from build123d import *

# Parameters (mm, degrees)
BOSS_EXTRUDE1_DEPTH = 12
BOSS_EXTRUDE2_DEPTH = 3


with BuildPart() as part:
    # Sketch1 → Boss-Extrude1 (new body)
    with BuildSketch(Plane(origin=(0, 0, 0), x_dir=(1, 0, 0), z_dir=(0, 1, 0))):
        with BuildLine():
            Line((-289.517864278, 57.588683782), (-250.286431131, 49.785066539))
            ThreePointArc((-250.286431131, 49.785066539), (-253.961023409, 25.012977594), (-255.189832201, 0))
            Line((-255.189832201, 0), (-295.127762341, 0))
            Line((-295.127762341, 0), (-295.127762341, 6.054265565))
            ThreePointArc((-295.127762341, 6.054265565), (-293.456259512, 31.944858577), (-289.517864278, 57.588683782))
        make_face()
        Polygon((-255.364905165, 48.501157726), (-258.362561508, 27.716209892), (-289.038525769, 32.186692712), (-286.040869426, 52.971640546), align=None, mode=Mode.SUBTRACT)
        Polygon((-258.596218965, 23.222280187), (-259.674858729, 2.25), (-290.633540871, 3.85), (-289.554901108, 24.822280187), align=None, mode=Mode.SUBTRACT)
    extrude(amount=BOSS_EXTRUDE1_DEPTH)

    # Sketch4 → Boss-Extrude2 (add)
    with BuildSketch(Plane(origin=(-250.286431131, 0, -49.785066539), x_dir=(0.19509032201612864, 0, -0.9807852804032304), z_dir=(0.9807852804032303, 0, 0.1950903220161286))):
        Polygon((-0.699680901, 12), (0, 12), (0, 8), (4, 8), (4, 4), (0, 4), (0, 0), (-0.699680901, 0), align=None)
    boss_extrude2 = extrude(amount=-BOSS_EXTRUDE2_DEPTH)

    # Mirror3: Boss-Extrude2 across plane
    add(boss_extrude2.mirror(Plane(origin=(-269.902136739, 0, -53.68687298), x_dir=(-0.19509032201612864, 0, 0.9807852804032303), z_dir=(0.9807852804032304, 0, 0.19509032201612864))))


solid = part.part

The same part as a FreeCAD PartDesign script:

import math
import FreeCAD as App
import Part
import Sketcher
Q = App.Units.Quantity

doc = App.newDocument("Part")
body = doc.addObject("PartDesign::Body", "Body")

# Sketch on XZ plane
sketch1 = body.newObject("Sketcher::SketchObject", "Sketch")
sketch1.AttachmentSupport = (doc.getObject("XZ_Plane"), [""])
sketch1.MapMode = "FlatFace"
sketch1.addGeometry(Part.LineSegment(App.Vector(-250, -50, 0), App.Vector(-290, -58, 0)), False)
sketch1.addGeometry(Part.ArcOfCircle(Part.Circle(App.Vector(0, 0, 0), App.Vector(0, 0, 1), 295), math.radians(-178.82), math.radians(-168.75)), False)
sketch1.addGeometry(Part.LineSegment(App.Vector(-295, -6, 0), App.Vector(-295, 0, 0)), False)
sketch1.addGeometry(Part.LineSegment(App.Vector(-295, 0, 0), App.Vector(-255, 0, 0)), False)
sketch1.addGeometry(Part.ArcOfCircle(Part.Circle(App.Vector(0, 0, 0), App.Vector(0, 0, 1), 255), math.radians(180), math.radians(191.25)), False)
sketch1.addGeometry(Part.LineSegment(App.Vector(-259, -23, 0), App.Vector(-260, -2, 0)), False)
sketch1.addGeometry(Part.LineSegment(App.Vector(-260, -2, 0), App.Vector(-291, -4, 0)), False)
sketch1.addGeometry(Part.LineSegment(App.Vector(-291, -4, 0), App.Vector(-290, -25, 0)), False)
sketch1.addGeometry(Part.LineSegment(App.Vector(-290, -25, 0), App.Vector(-259, -23, 0)), False)
sketch1.addGeometry(Part.LineSegment(App.Vector(-255, -49, 0), App.Vector(-258, -28, 0)), False)
sketch1.addGeometry(Part.LineSegment(App.Vector(-258, -28, 0), App.Vector(-289, -32, 0)), False)
sketch1.addGeometry(Part.LineSegment(App.Vector(-289, -32, 0), App.Vector(-286, -53, 0)), False)
sketch1.addGeometry(Part.LineSegment(App.Vector(-286, -53, 0), App.Vector(-255, -49, 0)), False)
sketch1.addConstraint(Sketcher.Constraint("Coincident", 0, 2, 1, 2))
sketch1.addConstraint(Sketcher.Constraint("Coincident", 1, 1, 2, 1))
sketch1.addConstraint(Sketcher.Constraint("Coincident", 2, 2, 3, 1))
sketch1.addConstraint(Sketcher.Constraint("Coincident", 3, 2, 4, 1))
sketch1.addConstraint(Sketcher.Constraint("Coincident", 4, 2, 0, 1))
sketch1.addConstraint(Sketcher.Constraint("Coincident", 5, 2, 6, 1))
sketch1.addConstraint(Sketcher.Constraint("Coincident", 6, 2, 7, 1))
sketch1.addConstraint(Sketcher.Constraint("Coincident", 7, 2, 8, 1))
sketch1.addConstraint(Sketcher.Constraint("Coincident", 8, 2, 5, 1))
sketch1.addConstraint(Sketcher.Constraint("Coincident", 9, 2, 10, 1))
sketch1.addConstraint(Sketcher.Constraint("Coincident", 10, 2, 11, 1))
sketch1.addConstraint(Sketcher.Constraint("Coincident", 11, 2, 12, 1))
sketch1.addConstraint(Sketcher.Constraint("Coincident", 12, 2, 9, 1))
sketch1.addConstraint(Sketcher.Constraint("Vertical", 2))
sketch1.addConstraint(Sketcher.Constraint("Horizontal", 3))
sketch1.addConstraint(Sketcher.Constraint("Coincident", 1, 3, -1, 1))
sketch1.addConstraint(Sketcher.Constraint("Coincident", 4, 3, -1, 1))
sketch1.addConstraint(Sketcher.Constraint("PointOnObject", 2, 2, -1))
sketch1.addConstraint(Sketcher.Constraint("Parallel", 5, 7))
sketch1.addConstraint(Sketcher.Constraint("Parallel", 6, 8))
sketch1.addConstraint(Sketcher.Constraint("Parallel", 9, 11))
sketch1.addConstraint(Sketcher.Constraint("Parallel", 10, 12))
sketch1.addConstraint(Sketcher.Constraint("Equal", 7, 9))
sketch1.addConstraint(Sketcher.Constraint("Equal", 8, 10))
sketch1.addConstraint(Sketcher.Constraint("Distance", 5, 21.0))
sketch1.addConstraint(Sketcher.Constraint("Distance", 6, 31.0))
sketch1.addConstraint(Sketcher.Constraint("Angle", 0, Q("-168.75 deg")))
sketch1.addConstraint(Sketcher.Constraint("DistanceY", 6, 2, 5, 2, 1.6))
sketch1.addConstraint(Sketcher.Constraint("DistanceY", 5, 2, -1, 1, 2.25))
sketch1.addConstraint(Sketcher.Constraint("Radius", 1, 295.189854))
sketch1.addConstraint(Sketcher.Constraint("Radius", 4, 255.189832))
sketch1.addConstraint(Sketcher.Constraint("DistanceX", 3, 1, 3, 2, 39.93793))
sketch1.addConstraint(Sketcher.Constraint("DistanceX", 7, 2, -1, 1, 289.554901))
sketch1.addConstraint(Sketcher.Constraint("DistanceX", 1, 1, 0, 2, 5.609898))
sketch1.addConstraint(Sketcher.Constraint("DistanceX", 5, 2, -1, 1, 259.674859))
sketch1.addConstraint(Sketcher.Constraint("DistanceX", 9, 2, -1, 1, 258.362562))
sketch1.addConstraint(Sketcher.Constraint("DistanceY", 9, 2, -1, 1, 27.71621))
sketch1.addConstraint(Sketcher.Constraint("DistanceX", 11, 2, -1, 1, 286.040869))
sketch1.addConstraint(Sketcher.Constraint("DistanceY", 11, 2, -1, 1, 52.971641))
pad1 = body.newObject("PartDesign::Pad", "Pad")
pad1.Profile = sketch1
pad1.Length = 12
pad1.Reversed = True

# Sketch on an angled plane
sketch2 = body.newObject("Sketcher::SketchObject", "Sketch001")
sketch2.Placement = App.Placement(App.Vector(-250.286431, 0, -49.785067), App.Rotation(App.Vector(0.195090322, 0, -0.98078528), App.Vector(0, 0.999999999, 0), App.Vector(0.98078528, 0, 0.195090322), "ZXY"))
sketch2.addGeometry(Part.LineSegment(App.Vector(0, 12, 0), App.Vector(-0.7, 12, 0)), False)
sketch2.addGeometry(Part.LineSegment(App.Vector(-0.7, 12, 0), App.Vector(-0.7, 0, 0)), False)
sketch2.addGeometry(Part.LineSegment(App.Vector(-0.7, 0, 0), App.Vector(0, 0, 0)), False)
sketch2.addGeometry(Part.LineSegment(App.Vector(0, 0, 0), App.Vector(0, 4, 0)), False)
sketch2.addGeometry(Part.LineSegment(App.Vector(0, 4, 0), App.Vector(4, 4, 0)), False)
sketch2.addGeometry(Part.LineSegment(App.Vector(4, 4, 0), App.Vector(4, 8, 0)), False)
sketch2.addGeometry(Part.LineSegment(App.Vector(4, 8, 0), App.Vector(0, 8, 0)), False)
sketch2.addGeometry(Part.LineSegment(App.Vector(0, 8, 0), App.Vector(0, 12, 0)), False)
sketch2.addConstraint(Sketcher.Constraint("Coincident", 0, 2, 1, 1))
sketch2.addConstraint(Sketcher.Constraint("Coincident", 1, 2, 2, 1))
sketch2.addConstraint(Sketcher.Constraint("Coincident", 2, 2, 3, 1))
sketch2.addConstraint(Sketcher.Constraint("Coincident", 3, 2, 4, 1))
sketch2.addConstraint(Sketcher.Constraint("Coincident", 4, 2, 5, 1))
sketch2.addConstraint(Sketcher.Constraint("Coincident", 5, 2, 6, 1))
sketch2.addConstraint(Sketcher.Constraint("Coincident", 6, 2, 7, 1))
sketch2.addConstraint(Sketcher.Constraint("Coincident", 7, 2, 0, 1))
sketch2.addConstraint(Sketcher.Constraint("Horizontal", 0))
sketch2.addConstraint(Sketcher.Constraint("Vertical", 1))
sketch2.addConstraint(Sketcher.Constraint("Horizontal", 2))
sketch2.addConstraint(Sketcher.Constraint("Vertical", 3))
sketch2.addConstraint(Sketcher.Constraint("Horizontal", 4))
sketch2.addConstraint(Sketcher.Constraint("Vertical", 5))
sketch2.addConstraint(Sketcher.Constraint("Horizontal", 6))
sketch2.addConstraint(Sketcher.Constraint("Vertical", 7))
sketch2.addConstraint(Sketcher.Constraint("Coincident", 2, 2, -1, 1))
sketch2.addConstraint(Sketcher.Constraint("PointOnObject", 6, 2, -2))
sketch2.addConstraint(Sketcher.Constraint("Equal", 6, 3))
sketch2.addConstraint(Sketcher.Constraint("Equal", 3, 5))
sketch2.addConstraint(Sketcher.Constraint("Equal", 5, 7))
sketch2.addConstraint(Sketcher.Constraint("DistanceX", 4, 1, 4, 2, 4.0))
sketch2.addConstraint(Sketcher.Constraint("DistanceX", 0, 2, 0, 1, 0.699681))
pad2 = body.newObject("PartDesign::Pad", "Pad001")
pad2.Profile = sketch2
pad2.Length = 3
pad2.Reversed = True
doc.recompute()

datumplane = body.newObject("PartDesign::Plane", "DatumPlane")
datumplane.Placement = App.Placement(App.Vector(-269.902137, 0, -53.686873), App.Rotation(App.Vector(-0.195090322, 0, 0.98078528), App.Vector(0, -1, 0), App.Vector(0.98078528, 0, 0.195090322), "ZXY"))
mirrored = body.newObject("PartDesign::Mirrored", "Mirrored")
mirrored.Originals = [pad2]
mirrored.MirrorPlane = (datumplane, [""])
body.Tip = mirrored

doc.recompute()
